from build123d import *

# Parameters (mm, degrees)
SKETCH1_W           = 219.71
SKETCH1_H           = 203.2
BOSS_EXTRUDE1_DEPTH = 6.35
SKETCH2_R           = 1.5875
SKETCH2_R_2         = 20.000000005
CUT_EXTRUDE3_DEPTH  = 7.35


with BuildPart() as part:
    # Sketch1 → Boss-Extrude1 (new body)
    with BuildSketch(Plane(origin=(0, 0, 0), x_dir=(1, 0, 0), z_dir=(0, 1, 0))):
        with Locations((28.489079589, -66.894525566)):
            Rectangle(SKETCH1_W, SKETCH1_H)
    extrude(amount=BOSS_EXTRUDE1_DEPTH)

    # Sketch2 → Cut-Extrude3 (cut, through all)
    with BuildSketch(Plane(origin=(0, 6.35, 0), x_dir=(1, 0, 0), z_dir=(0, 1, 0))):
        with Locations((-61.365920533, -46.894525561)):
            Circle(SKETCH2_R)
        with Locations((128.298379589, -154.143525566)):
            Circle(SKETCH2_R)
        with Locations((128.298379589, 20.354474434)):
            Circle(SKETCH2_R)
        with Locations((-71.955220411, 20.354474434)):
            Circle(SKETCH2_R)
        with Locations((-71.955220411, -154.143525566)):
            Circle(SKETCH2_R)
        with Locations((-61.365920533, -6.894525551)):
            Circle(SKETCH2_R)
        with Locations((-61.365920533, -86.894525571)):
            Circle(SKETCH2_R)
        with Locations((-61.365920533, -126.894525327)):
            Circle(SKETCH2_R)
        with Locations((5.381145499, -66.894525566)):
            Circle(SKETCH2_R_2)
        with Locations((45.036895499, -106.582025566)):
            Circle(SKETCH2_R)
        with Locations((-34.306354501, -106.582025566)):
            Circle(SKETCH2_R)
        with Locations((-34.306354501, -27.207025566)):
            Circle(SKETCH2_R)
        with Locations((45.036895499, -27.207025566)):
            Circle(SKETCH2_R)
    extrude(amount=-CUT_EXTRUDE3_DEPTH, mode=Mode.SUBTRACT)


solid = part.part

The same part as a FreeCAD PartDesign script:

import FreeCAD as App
import Part
import Sketcher
Q = App.Units.Quantity


def add_polygon(sketch, points):
    """Adds a closed chain of lines whose ends are joined by coincident constraints."""
    first, n = sketch.GeometryCount, len(points)
    for a, b in zip(points, points[1:] + points[:1]):
        sketch.addGeometry(Part.LineSegment(App.Vector(*a, 0), App.Vector(*b, 0)), False)
    for i in range(n):
        sketch.addConstraint(Sketcher.Constraint("Coincident", first + i, 2, first + (i + 1) % n, 1))

doc = App.newDocument("Part")
body = doc.addObject("PartDesign::Body", "Body")

# Sketch on XZ plane
sketch1 = doc.addObject("Sketcher::SketchObject", "Sketch")
body.addObject(sketch1)
sketch1.AttachmentSupport = (doc.XZ_Plane, [""])
sketch1.MapMode = "FlatFace"
add_polygon(sketch1, [(-81.36592, -34.705474), (-81.36592, 168.494526), (138.34408, 168.494526), (138.34408, -34.705474)])  # lines 0-3
sketch1.addConstraint(Sketcher.Constraint("Vertical", 0))
sketch1.addConstraint(Sketcher.Constraint("Horizontal", 1))
sketch1.addConstraint(Sketcher.Constraint("Vertical", 2))
sketch1.addConstraint(Sketcher.Constraint("Horizontal", 3))
sketch1.addConstraint(Sketcher.Constraint("DistanceY", 0, 1, 0, 2, Q("8 in")))
sketch1.addConstraint(Sketcher.Constraint("DistanceX", 1, 1, 1, 2, Q("8.65 in")))
sketch1.addConstraint(Sketcher.Constraint("DistanceX", 0, 2, -1, 1, Q("81.36592 mm")))
sketch1.addConstraint(Sketcher.Constraint("DistanceY", -1, 1, 0, 2, Q("168.494526 mm")))
pad1 = doc.addObject("PartDesign::Pad", "Pad")
body.addObject(pad1)
pad1.Profile = sketch1
pad1.Length = Q("0.25 in")
pad1.Reversed = True

# Sketch on XZ plane
sketch2 = doc.addObject("Sketcher::SketchObject", "Sketch001")
body.addObject(sketch2)
sketch2.AttachmentSupport = (doc.XZ_Plane, [""])
sketch2.MapMode = "FlatFace"
sketch2.AttachmentOffset = App.Placement(App.Vector(0, 0, -0.25 * 25.4), App.Rotation())
sketch2.addGeometry(Part.Circle(App.Vector(-61.365921, 46.894526, 0), App.Vector(0, 0, 1), 1.5875), False)
sketch2.addGeometry(Part.Circle(App.Vector(128.29838, 154.143526, 0), App.Vector(0, 0, 1), 1.5875), False)
sketch2.addGeometry(Part.Circle(App.Vector(128.29838, -20.354474, 0), App.Vector(0, 0, 1), 1.5875), False)
sketch2.addGeometry(Part.Circle(App.Vector(-71.95522, -20.354474, 0), App.Vector(0, 0, 1), 1.5875), False)
sketch2.addGeometry(Part.Circle(App.Vector(-71.95522, 154.143526, 0), App.Vector(0, 0, 1), 1.5875), False)
sketch2.addGeometry(Part.Circle(App.Vector(-61.365921, 6.894526, 0), App.Vector(0, 0, 1), 1.5875), False)
sketch2.addGeometry(Part.Circle(App.Vector(-61.365921, 86.894526, 0), App.Vector(0, 0, 1), 1.5875), False)
sketch2.addGeometry(Part.Circle(App.Vector(-61.365921, 126.894525, 0), App.Vector(0, 0, 1), 1.5875), False)
sketch2.addGeometry(Part.Circle(App.Vector(5.381145, 66.894526, 0), App.Vector(0, 0, 1), 20), False)
sketch2.addGeometry(Part.Circle(App.Vector(45.036895, 106.582026, 0), App.Vector(0, 0, 1), 1.5875), False)
sketch2.addGeometry(Part.Circle(App.Vector(-34.306355, 106.582026, 0), App.Vector(0, 0, 1), 1.5875), False)
sketch2.addGeometry(Part.Circle(App.Vector(-34.306355, 27.207026, 0), App.Vector(0, 0, 1), 1.5875), False)
sketch2.addGeometry(Part.Circle(App.Vector(45.036895, 27.207026, 0), App.Vector(0, 0, 1), 1.5875), False)
sketch2.addConstraint(Sketcher.Constraint("Equal", 0, 1))
sketch2.addConstraint(Sketcher.Constraint("Equal", 1, 2))
sketch2.addConstraint(Sketcher.Constraint("Equal", 2, 3))
sketch2.addConstraint(Sketcher.Constraint("Equal", 3, 4))
sketch2.addConstraint(Sketcher.Constraint("Equal", 4, 5))
sketch2.addConstraint(Sketcher.Constraint("Equal", 5, 6))
sketch2.addConstraint(Sketcher.Constraint("Equal", 6, 7))
sketch2.addConstraint(Sketcher.Constraint("Equal", 7, 9))
sketch2.addConstraint(Sketcher.Constraint("Equal", 9, 10))
sketch2.addConstraint(Sketcher.Constraint("Equal", 10, 11))
sketch2.addConstraint(Sketcher.Constraint("Equal", 11, 12))
sketch2.addConstraint(Sketcher.Constraint("Horizontal", 2, 3, 3, 3))
sketch2.addConstraint(Sketcher.Constraint("Horizontal", 1, 3, 4, 3))
sketch2.addConstraint(Sketcher.Constraint("Horizontal", 9, 3, 10, 3))
sketch2.addConstraint(Sketcher.Constraint("Horizontal", 11, 3, 12, 3))
sketch2.addConstraint(Sketcher.Constraint("Vertical", 1, 3, 2, 3))
sketch2.addConstraint(Sketcher.Constraint("Vertical", 3, 3, 4, 3))
sketch2.addConstraint(Sketcher.Constraint("Vertical", 0, 3, 5, 3))
sketch2.addConstraint(Sketcher.Constraint("Vertical", 5, 3, 6, 3))
sketch2.addConstraint(Sketcher.Constraint("Vertical", 6, 3, 7, 3))
sketch2.addConstraint(Sketcher.Constraint("Vertical", 10, 3, 11, 3))
sketch2.addConstraint(Sketcher.Constraint("Vertical", 9, 3, 12, 3))
sketch2.addConstraint(Sketcher.Constraint("Diameter", 0, Q("0.125 in")))
sketch2.addConstraint(Sketcher.Constraint("Diameter", 8, Q("40 mm")))
sketch2.addConstraint(Sketcher.Constraint("DistanceY", 2, 3, 1, 3, Q("6.87 in")))
sketch2.addConstraint(Sketcher.Constraint("DistanceX", 3, 3, 2, 3, Q("7.884 in")))
sketch2.addConstraint(Sketcher.Constraint("DistanceY", 3, 3, 8, 3, Q("3.435 in")))
sketch2.addConstraint(Sketcher.Constraint("DistanceY", 8, 3, 9, 3, Q("1.5625 in")))
sketch2.addConstraint(Sketcher.Constraint("DistanceX", 10, 3, 8, 3, Q("1.5625 in")))
sketch2.addConstraint(Sketcher.Constraint("DistanceY", 11, 3, 8, 3, Q("1.5625 in")))
sketch2.addConstraint(Sketcher.Constraint("DistanceX", 0, 3, 1, 3, Q("189.6643 mm")))
sketch2.addConstraint(Sketcher.Constraint("DistanceY", 0, 3, 1, 3, Q("107.249 mm")))
sketch2.addConstraint(Sketcher.Constraint("DistanceY", 3, 3, 5, 3, Q("27.249 mm")))
sketch2.addConstraint(Sketcher.Constraint("DistanceY", 0, 3, 6, 3, Q("40 mm")))
sketch2.addConstraint(Sketcher.Constraint("DistanceY", 7, 3, 4, 3, Q("27.249 mm")))
sketch2.addConstraint(Sketcher.Constraint("DistanceX", 0, 3, -1, 1, Q("61.365921 mm")))
sketch2.addConstraint(Sketcher.Constraint("DistanceX", 8, 3, 9, 3, Q("39.65575 mm")))
sketch2.addConstraint(Sketcher.Constraint("DistanceY", -1, 1, 0, 3, Q("46.894526 mm")))
sketch2.addConstraint(Sketcher.Constraint("DistanceX", -1, 1, 8, 3, Q("5.381145 mm")))
pocket1 = doc.addObject("PartDesign::Pocket", "Pocket")
body.addObject(pocket1)
pocket1.Profile = sketch2
pocket1.Type = "ThroughAll"
pocket1.Reversed = True

doc.recompute()
